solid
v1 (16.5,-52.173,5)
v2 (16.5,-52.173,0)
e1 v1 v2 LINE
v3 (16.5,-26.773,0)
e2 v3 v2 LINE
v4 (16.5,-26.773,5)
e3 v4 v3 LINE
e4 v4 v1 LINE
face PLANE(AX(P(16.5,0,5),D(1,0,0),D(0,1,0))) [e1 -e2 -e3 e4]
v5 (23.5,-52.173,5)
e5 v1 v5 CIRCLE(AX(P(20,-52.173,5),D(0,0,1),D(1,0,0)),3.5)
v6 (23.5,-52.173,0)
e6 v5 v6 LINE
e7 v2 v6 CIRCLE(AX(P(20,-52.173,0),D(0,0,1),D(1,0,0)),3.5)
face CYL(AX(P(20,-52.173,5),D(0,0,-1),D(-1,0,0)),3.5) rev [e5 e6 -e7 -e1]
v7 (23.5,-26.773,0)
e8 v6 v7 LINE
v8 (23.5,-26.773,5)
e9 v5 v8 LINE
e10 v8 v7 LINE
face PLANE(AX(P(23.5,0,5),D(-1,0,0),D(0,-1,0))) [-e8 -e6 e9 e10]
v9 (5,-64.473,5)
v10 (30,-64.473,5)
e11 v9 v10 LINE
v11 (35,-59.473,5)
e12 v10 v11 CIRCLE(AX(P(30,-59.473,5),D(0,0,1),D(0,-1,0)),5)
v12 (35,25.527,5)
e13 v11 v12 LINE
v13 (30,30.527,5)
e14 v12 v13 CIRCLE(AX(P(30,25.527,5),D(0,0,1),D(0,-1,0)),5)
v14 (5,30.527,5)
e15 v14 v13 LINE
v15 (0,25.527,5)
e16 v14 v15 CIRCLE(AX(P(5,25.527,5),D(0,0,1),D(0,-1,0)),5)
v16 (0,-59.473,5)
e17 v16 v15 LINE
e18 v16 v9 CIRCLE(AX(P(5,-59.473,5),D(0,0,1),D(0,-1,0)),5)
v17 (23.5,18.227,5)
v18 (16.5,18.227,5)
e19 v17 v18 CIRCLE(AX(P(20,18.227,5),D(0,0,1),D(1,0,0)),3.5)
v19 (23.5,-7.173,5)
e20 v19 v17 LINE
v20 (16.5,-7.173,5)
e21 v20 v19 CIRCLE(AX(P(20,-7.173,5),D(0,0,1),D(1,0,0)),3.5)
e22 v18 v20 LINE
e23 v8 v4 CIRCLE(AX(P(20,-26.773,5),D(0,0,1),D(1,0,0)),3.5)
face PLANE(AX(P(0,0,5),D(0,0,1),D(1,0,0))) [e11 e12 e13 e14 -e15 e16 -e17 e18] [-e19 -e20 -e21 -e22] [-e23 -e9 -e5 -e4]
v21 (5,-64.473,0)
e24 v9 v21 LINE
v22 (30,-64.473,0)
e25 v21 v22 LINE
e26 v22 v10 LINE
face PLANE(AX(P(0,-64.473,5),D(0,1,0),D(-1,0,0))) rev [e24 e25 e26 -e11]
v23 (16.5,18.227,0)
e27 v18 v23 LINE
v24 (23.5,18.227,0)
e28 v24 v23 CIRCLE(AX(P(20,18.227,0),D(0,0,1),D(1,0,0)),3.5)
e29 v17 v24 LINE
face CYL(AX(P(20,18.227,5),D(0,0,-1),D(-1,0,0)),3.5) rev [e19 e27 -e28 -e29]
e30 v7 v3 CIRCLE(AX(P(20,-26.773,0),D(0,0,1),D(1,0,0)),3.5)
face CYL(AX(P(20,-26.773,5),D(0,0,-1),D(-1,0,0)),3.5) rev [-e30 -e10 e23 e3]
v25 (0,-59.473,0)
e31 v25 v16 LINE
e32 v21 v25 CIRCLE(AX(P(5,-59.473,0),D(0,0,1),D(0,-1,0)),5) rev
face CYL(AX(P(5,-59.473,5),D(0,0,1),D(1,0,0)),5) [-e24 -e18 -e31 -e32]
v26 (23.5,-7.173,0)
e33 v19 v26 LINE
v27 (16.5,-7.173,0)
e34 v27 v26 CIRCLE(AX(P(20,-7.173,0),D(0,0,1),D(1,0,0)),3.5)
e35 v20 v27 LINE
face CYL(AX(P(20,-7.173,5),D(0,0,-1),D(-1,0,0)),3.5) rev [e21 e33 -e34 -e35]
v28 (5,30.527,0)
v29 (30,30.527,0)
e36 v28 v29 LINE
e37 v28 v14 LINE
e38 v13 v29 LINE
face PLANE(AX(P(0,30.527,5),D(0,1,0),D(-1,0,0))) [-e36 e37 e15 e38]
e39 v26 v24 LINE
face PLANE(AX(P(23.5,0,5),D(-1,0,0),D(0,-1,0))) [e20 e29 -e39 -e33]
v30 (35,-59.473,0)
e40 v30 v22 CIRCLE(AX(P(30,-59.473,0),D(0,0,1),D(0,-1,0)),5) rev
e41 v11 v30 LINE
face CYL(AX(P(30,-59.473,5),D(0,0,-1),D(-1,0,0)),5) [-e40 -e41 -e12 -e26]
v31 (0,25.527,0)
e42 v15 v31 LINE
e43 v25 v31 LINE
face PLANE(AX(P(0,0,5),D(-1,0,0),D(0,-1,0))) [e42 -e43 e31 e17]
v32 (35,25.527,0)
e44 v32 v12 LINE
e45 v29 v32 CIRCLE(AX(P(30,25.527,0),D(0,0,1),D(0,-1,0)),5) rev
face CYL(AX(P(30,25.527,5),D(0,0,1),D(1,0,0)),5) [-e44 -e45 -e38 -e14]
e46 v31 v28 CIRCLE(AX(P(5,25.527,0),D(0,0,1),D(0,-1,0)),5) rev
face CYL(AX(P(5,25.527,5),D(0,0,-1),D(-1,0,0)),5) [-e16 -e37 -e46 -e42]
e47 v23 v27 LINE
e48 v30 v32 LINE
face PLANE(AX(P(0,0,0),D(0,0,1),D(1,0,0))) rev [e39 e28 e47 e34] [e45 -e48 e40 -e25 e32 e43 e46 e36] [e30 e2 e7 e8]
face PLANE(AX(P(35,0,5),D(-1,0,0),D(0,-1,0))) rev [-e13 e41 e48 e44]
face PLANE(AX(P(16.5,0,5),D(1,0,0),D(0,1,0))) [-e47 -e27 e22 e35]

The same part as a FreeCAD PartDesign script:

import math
import FreeCAD as App
import Part
import Sketcher

V = App.Vector


def edges_at(feature, points):
    """Names of the edges that pass closest to the given points."""
    edges = feature.Shape.Edges
    near = lambda p: min(range(len(edges)), key=lambda i: edges[i].distToShape(Part.Vertex(*p))[0])
    return sorted({f"Edge{near(p) + 1}" for p in points})

doc = App.newDocument("Part")
body = doc.addObject("PartDesign::Body", "Body")

# Sketch on XY plane
sketch1 = body.newObject("Sketcher::SketchObject", "Sketch")
sketch1.AttachmentSupport = (doc.getObject("XY_Plane"), [""])
sketch1.MapMode = "FlatFace"
sketch1.addGeometry([
    Part.LineSegment(V(0, 30.527, 0), V(0, -64.473, 0)),  # 0
    Part.LineSegment(V(0, -64.473, 0), V(35, -64.473, 0)),  # 1
    Part.LineSegment(V(35, -64.473, 0), V(35, 30.527, 0)),  # 2
    Part.LineSegment(V(35, 30.527, 0), V(0, 30.527, 0)),  # 3
    Part.ArcOfCircle(Part.Circle(V(20, -26.773, 0), V(0, 0, 1), 3.5), math.radians(0), math.radians(180)),  # 4
    Part.LineSegment(V(23.5, -26.773, 0), V(23.5, -52.173, 0)),  # 5
    Part.ArcOfCircle(Part.Circle(V(20, -52.173, 0), V(0, 0, 1), 3.5), math.radians(180), math.radians(360)),  # 6
    Part.LineSegment(V(16.5, -52.173, 0), V(16.5, -26.773, 0)),  # 7
    Part.ArcOfCircle(Part.Circle(V(20, -7.173, 0), V(0, 0, 1), 3.5), math.radians(180), math.radians(360)),  # 8
    Part.LineSegment(V(16.5, -7.173, 0), V(16.5, 18.227, 0)),  # 9
    Part.ArcOfCircle(Part.Circle(V(20, 18.227, 0), V(0, 0, 1), 3.5), math.radians(0), math.radians(180)),  # 10
    Part.LineSegment(V(23.5, 18.227, 0), V(23.5, -7.173, 0)),  # 11
], False)
sketch1.addConstraint([
    Sketcher.Constraint("Coincident", 0, 2, 1, 1),
    Sketcher.Constraint("Coincident", 1, 2, 2, 1),
    Sketcher.Constraint("Coincident", 2, 2, 3, 1),
    Sketcher.Constraint("Coincident", 3, 2, 0, 1),
    Sketcher.Constraint("Tangent", 4, 1, 5, 1),
    Sketcher.Constraint("Tangent", 5, 2, 6, 2),
    Sketcher.Constraint("Tangent", 6, 1, 7, 1),
    Sketcher.Constraint("Tangent", 7, 2, 4, 2),
    Sketcher.Constraint("Tangent", 8, 1, 9, 1),
    Sketcher.Constraint("Tangent", 9, 2, 10, 2),
    Sketcher.Constraint("Tangent", 10, 1, 11, 1),
    Sketcher.Constraint("Tangent", 11, 2, 8, 2),
    Sketcher.Constraint("Vertical", 0),
    Sketcher.Constraint("Horizontal", 1),
    Sketcher.Constraint("Vertical", 2),
    Sketcher.Constraint("Horizontal", 3),
    Sketcher.Constraint("Vertical", 5),
    Sketcher.Constraint("Vertical", 7),
    Sketcher.Constraint("Vertical", 9),
    Sketcher.Constraint("Vertical", 11),
    Sketcher.Constraint("Equal", 6, 8),
    Sketcher.Constraint("PointOnObject", 0, 2, -2),
    Sketcher.Constraint("Vertical", 6, 3, 8, 3),
    Sketcher.Constraint("Equal", 7, 9),
    Sketcher.Constraint("Radius", 4, 3.5),
    Sketcher.Constraint("DistanceX", 1, 1, 1, 2, 35.0),
    Sketcher.Constraint("DistanceY", 0, 2, 0, 1, 95.0),
    Sketcher.Constraint("DistanceY", 5, 2, 5, 1, 25.4),
    Sketcher.Constraint("DistanceX", -1, 1, 4, 3, 20.0),
    Sketcher.Constraint("DistanceY", 6, 3, 8, 3, 45.0),
    Sketcher.Constraint("DistanceY", 0, 2, 6, 3, 12.3),
    Sketcher.Constraint("DistanceY", 4, 3, -1, 1, 26.773),
])
pad1 = body.newObject("PartDesign::Pad", "Pad")
pad1.Profile = sketch1
pad1.Length = 5
doc.recompute()

fillet = body.newObject("PartDesign::Fillet", "Fillet")
fillet.Base = (pad1, edges_at(pad1, [
    (0, -64.473, 2.5),
    (0, 30.527, 2.5),
    (35, 30.527, 2.5),
    (35, -64.473, 2.5),
]))
fillet.Radius = 5

doc.recompute()
